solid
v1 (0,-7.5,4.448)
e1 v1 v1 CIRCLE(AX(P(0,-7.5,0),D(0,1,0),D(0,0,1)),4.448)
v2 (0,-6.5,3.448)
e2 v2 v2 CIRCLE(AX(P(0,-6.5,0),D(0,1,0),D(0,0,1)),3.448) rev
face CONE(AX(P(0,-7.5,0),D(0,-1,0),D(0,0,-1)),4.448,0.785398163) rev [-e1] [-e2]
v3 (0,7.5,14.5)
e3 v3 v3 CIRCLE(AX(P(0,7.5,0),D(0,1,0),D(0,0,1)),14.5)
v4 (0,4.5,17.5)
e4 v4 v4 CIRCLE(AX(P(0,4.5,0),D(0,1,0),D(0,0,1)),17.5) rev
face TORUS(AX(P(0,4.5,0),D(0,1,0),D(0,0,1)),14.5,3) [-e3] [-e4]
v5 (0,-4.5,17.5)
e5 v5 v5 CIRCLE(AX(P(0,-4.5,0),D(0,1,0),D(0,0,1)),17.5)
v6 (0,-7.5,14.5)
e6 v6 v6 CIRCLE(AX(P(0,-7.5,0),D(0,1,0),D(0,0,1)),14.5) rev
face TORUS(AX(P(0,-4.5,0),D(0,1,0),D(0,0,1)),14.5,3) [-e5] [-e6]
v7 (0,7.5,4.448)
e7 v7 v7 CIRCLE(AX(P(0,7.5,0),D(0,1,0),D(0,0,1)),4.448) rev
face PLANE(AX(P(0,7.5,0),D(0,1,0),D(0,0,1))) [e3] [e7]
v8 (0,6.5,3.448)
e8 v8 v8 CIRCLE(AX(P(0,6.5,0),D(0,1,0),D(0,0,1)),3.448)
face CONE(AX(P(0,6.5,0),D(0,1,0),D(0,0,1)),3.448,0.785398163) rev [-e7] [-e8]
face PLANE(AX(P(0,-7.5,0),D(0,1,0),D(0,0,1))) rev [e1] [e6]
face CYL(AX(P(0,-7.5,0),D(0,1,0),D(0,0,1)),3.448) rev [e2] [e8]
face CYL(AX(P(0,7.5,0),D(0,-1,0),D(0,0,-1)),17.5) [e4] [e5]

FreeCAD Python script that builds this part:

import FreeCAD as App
import Part
import Sketcher
from FreeCAD import Vector


def edges_at(feature, points):
    """Names of the edges that pass closest to the given points."""
    edges = feature.Shape.Edges
    near = lambda p: min(range(len(edges)), key=lambda i: edges[i].distToShape(Part.Vertex(*p))[0])
    return sorted({f"Edge{near(p) + 1}" for p in points})

doc = App.newDocument("Part")
params = doc.addObject("Spreadsheet::Sheet", "Params")
for row, (alias, value) in enumerate([
    ("sketch1_diameter", "35 mm"),
    ("pad1_length", "15 mm"),
    ("fillet_radius", "3 mm"),
    ("chamfer_size", "1 mm"),
], start=1):
    params.set(f"A{row}", alias)
    params.set(f"B{row}", "=" + value)
    params.setAlias(f"B{row}", alias)

body = doc.addObject("PartDesign::Body", "Body")

sketch1 = doc.addObject("Sketcher::SketchObject", "Sketch")
body.addObject(sketch1)
sketch1.AttachmentSupport = (doc.XZ_Plane, [""])
sketch1.MapMode = "FlatFace"
sketch1.addGeometry(Part.Circle(Vector(0, 0, 0), Vector(0, 0, 1), 18), False)
sketch1.addConstraint([
    Sketcher.Constraint("Coincident", 0, 3, -1, 1),
    Sketcher.Constraint("Diameter", 0, 35.0),
])
sketch1.setExpression("Constraints[1]", "Params.sketch1_diameter")
pad1 = doc.addObject("PartDesign::Pad", "Pad")
body.addObject(pad1)
pad1.Profile = sketch1
pad1.setExpression("Length", "Params.pad1_length")
pad1.Midplane = True
doc.recompute()

fillet = doc.addObject("PartDesign::Fillet", "Fillet")
body.addObject(fillet)
fillet.Base = (pad1, edges_at(pad1, [(0, -7.5, -17.5), (0, 7.5, -17.5)]))
fillet.setExpression("Radius", "Params.fillet_radius")

sketch2 = doc.addObject("Sketcher::SketchObject", "Sketch001")
body.addObject(sketch2)
sketch2.AttachmentSupport = (doc.XZ_Plane, [""])
sketch2.MapMode = "FlatFace"
sketch2.addGeometry(Part.Circle(Vector(0, 0, 0), Vector(0, 0, 1), 3.4), False)
sketch2.addConstraint([
    Sketcher.Constraint("Coincident", 0, 3, -1, 1),
    Sketcher.Constraint("Diameter", 0, 6.896),
])
pocket1 = doc.addObject("PartDesign::Pocket", "Pocket")
body.addObject(pocket1)
pocket1.Profile = sketch2
pocket1.Type = "ThroughAll"
pocket1.Midplane = True
doc.recompute()

chamfer = doc.addObject("PartDesign::Chamfer", "Chamfer")
body.addObject(chamfer)
chamfer.Base = (pocket1, edges_at(pocket1, [(0, -7.5, -3.448), (0, 7.5, -3.448)]))
chamfer.setExpression("Size", "Params.chamfer_size")

doc.recompute()
